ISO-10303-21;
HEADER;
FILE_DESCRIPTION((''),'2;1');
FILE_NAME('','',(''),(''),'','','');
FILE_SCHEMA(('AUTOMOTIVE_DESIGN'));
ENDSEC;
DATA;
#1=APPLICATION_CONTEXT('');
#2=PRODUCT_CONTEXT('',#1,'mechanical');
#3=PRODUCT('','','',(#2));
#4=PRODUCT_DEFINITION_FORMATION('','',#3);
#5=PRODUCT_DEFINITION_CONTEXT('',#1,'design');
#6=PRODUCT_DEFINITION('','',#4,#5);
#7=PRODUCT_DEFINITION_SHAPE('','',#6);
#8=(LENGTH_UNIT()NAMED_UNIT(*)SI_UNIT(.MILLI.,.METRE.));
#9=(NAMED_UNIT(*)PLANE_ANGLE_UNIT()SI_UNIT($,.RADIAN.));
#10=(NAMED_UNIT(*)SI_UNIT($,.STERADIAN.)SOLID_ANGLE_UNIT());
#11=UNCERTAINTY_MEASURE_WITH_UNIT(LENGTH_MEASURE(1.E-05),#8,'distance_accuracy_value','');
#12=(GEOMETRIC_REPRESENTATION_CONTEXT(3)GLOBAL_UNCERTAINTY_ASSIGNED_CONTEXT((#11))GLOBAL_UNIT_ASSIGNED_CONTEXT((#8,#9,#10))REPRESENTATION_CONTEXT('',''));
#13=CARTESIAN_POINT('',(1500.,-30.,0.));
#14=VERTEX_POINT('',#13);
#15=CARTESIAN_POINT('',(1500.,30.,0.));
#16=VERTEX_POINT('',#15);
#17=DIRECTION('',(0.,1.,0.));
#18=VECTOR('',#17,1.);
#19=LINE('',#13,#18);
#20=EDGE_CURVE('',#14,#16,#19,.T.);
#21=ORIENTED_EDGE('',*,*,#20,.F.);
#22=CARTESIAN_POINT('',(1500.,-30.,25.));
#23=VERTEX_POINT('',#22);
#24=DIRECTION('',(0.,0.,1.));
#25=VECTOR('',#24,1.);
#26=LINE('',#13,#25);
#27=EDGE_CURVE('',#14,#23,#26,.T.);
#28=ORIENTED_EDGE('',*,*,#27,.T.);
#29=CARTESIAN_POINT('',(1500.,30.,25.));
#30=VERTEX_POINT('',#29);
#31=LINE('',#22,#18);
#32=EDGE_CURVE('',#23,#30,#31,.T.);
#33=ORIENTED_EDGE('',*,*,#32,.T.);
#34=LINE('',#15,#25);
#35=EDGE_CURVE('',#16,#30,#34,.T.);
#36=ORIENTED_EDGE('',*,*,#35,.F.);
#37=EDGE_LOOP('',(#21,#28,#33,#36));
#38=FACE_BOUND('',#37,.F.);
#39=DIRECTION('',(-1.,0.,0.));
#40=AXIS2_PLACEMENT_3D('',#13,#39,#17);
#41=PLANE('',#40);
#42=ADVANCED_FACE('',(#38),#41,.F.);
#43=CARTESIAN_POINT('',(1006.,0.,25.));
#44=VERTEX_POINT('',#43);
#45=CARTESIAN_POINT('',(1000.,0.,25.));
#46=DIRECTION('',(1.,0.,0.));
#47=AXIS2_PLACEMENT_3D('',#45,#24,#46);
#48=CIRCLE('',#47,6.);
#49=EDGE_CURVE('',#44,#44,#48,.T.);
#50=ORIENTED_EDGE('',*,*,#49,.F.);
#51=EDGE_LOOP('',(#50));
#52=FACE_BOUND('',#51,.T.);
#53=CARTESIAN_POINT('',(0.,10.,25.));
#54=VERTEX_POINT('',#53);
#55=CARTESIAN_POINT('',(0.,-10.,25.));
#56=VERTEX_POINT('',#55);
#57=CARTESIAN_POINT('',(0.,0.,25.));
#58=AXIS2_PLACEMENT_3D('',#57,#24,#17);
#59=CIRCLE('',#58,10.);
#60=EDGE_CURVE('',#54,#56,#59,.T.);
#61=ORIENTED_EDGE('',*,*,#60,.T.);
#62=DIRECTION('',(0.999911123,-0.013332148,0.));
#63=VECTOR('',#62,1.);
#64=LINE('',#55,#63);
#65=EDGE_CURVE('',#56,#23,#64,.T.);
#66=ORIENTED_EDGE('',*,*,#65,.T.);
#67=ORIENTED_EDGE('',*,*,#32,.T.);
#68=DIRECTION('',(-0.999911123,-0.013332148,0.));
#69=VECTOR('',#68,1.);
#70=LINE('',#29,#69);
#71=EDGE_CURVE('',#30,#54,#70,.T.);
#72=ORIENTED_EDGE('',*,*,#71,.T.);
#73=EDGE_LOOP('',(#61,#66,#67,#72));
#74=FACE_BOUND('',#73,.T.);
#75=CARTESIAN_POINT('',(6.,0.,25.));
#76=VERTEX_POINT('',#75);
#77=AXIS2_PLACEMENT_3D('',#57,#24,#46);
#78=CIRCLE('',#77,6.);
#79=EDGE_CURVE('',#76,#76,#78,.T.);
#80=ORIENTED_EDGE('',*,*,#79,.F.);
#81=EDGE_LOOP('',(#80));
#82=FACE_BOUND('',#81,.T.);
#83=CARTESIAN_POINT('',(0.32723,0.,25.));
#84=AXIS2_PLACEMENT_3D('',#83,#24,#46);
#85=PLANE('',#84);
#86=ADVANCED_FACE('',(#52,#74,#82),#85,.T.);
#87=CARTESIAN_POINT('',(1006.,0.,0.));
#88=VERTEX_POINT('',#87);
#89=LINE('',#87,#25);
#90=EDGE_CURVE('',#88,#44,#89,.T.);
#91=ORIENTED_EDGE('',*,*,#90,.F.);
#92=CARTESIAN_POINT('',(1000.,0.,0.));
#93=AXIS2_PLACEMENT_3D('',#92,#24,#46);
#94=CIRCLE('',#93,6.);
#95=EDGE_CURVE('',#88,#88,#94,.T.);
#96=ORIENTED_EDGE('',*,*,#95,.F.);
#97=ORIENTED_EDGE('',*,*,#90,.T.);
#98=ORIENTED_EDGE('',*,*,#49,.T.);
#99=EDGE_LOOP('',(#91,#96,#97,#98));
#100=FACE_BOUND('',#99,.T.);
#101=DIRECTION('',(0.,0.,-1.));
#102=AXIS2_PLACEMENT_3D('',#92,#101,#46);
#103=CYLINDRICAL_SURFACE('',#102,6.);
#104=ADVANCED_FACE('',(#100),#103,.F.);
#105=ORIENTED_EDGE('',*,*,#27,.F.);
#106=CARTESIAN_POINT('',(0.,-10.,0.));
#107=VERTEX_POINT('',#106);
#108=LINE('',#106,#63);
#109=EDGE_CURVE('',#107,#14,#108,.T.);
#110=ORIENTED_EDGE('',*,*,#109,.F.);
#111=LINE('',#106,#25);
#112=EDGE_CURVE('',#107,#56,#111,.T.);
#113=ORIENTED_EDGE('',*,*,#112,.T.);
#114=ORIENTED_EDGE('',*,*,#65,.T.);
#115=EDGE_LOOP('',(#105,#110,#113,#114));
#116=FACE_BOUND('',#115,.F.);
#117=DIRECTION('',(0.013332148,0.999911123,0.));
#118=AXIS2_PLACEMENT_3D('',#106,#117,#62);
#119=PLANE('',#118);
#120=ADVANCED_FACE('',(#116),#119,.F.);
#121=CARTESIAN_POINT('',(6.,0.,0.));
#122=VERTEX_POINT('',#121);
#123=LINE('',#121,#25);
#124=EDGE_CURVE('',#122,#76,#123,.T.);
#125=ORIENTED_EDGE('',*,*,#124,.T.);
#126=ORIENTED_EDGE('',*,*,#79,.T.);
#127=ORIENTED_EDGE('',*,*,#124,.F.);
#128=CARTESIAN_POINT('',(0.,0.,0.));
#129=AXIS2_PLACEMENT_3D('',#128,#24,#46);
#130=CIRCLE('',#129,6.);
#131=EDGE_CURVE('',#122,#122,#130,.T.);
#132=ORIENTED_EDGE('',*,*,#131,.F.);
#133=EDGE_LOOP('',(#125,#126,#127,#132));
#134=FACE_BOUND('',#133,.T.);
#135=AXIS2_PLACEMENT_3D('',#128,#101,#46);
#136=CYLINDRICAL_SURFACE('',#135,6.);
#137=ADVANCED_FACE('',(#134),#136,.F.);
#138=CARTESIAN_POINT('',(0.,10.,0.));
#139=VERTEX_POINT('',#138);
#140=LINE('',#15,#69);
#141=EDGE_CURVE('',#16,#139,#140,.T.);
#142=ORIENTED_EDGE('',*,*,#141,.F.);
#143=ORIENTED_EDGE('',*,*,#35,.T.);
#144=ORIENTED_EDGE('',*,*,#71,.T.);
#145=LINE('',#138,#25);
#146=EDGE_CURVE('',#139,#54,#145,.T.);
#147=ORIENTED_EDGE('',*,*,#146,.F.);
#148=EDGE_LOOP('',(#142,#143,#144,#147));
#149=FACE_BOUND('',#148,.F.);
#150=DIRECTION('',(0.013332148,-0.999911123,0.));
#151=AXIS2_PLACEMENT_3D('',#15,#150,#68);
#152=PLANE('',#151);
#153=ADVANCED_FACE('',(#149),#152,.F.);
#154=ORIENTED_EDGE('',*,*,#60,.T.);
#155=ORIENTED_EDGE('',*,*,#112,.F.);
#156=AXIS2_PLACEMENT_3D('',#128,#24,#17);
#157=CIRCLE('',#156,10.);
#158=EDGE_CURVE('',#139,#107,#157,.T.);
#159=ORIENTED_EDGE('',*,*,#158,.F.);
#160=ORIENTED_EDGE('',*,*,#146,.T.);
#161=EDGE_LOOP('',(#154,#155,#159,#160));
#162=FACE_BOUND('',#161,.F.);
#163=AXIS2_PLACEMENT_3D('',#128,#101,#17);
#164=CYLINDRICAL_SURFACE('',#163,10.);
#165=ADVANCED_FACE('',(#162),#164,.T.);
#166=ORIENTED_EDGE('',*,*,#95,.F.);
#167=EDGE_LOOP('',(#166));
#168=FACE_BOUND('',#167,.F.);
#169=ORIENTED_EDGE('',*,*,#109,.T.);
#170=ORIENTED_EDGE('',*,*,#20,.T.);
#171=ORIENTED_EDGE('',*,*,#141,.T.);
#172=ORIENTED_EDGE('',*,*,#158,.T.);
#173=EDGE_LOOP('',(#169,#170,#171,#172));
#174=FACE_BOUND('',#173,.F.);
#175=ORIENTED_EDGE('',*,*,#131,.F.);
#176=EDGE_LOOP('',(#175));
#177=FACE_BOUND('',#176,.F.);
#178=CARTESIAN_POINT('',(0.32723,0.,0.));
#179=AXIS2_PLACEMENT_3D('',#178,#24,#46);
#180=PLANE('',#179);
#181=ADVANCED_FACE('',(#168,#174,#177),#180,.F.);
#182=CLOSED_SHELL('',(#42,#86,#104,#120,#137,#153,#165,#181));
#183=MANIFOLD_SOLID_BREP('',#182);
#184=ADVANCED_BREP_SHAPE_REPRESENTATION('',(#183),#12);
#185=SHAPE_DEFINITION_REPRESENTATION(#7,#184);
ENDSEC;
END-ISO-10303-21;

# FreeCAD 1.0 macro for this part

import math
import FreeCAD as App
import Part
import Sketcher

V = App.Vector
Q = App.Units.Quantity

doc = App.newDocument("Part")
params = doc.addObject("Spreadsheet::Sheet", "Params")
for row, (alias, value) in enumerate([
    ("sketch1_diameter", "12 mm"),
    ("sketch1_radius", "10 mm"),
    ("sketch1_height", "60 mm"),
    ("pad1_length", "25 mm"),
], start=1):
    params.set(f"A{row}", alias)
    params.set(f"B{row}", "=" + value)
    params.setAlias(f"B{row}", alias)

body = doc.addObject("PartDesign::Body", "Body")

sketch1 = body.newObject("Sketcher::SketchObject", "Sketch")
sketch1.AttachmentSupport = (doc.getObject("XY_Plane"), [""])
sketch1.MapMode = "FlatFace"
sketch1.addGeometry(Part.ArcOfCircle(Part.Circle(V(0, 0, 0), V(0, 0, 1), 10), math.radians(90), math.radians(270)), False)
sketch1.addGeometry(Part.LineSegment(V(0, -10, 0), V(1500, -30, 0)), False)
sketch1.addGeometry(Part.LineSegment(V(1500, -30, 0), V(1500, 30, 0)), False)
sketch1.addGeometry(Part.LineSegment(V(1500, 30, 0), V(0, 10, 0)), False)
sketch1.addGeometry(Part.Circle(V(0, 0, 0), V(0, 0, 1), 6), False)
sketch1.addGeometry(Part.Circle(V(1000, 0, 0), V(0, 0, 1), 6), False)
sketch1.addConstraint(Sketcher.Constraint("Coincident", 0, 2, 1, 1))
sketch1.addConstraint(Sketcher.Constraint("Coincident", 1, 2, 2, 1))
sketch1.addConstraint(Sketcher.Constraint("Coincident", 2, 2, 3, 1))
sketch1.addConstraint(Sketcher.Constraint("Coincident", 3, 2, 0, 1))
sketch1.addConstraint(Sketcher.Constraint("Vertical", 2))
sketch1.addConstraint(Sketcher.Constraint("Coincident", 0, 3, -1, 1))
sketch1.addConstraint(Sketcher.Constraint("Coincident", 4, 3, -1, 1))
sketch1.addConstraint(Sketcher.Constraint("Equal", 4, 5))
sketch1.addConstraint(Sketcher.Constraint("PointOnObject", 5, 3, -1))
sketch1.addConstraint(Sketcher.Constraint("PointOnObject", 0, 2, -2))
sketch1.addConstraint(Sketcher.Constraint("PointOnObject", 3, 2, -2))
sketch1.addConstraint(Sketcher.Constraint("Equal", 1, 3))
sketch1.addConstraint(Sketcher.Constraint("Diameter", 4, Q("12 mm")))
sketch1.addConstraint(Sketcher.Constraint("Radius", 0, Q("10 mm")))
sketch1.addConstraint(Sketcher.Constraint("DistanceY", 2, 1, 2, 2, Q("60 mm")))
sketch1.addConstraint(Sketcher.Constraint("DistanceX", -1, 1, 5, 3, Q("1000 mm")))
sketch1.addConstraint(Sketcher.Constraint("DistanceX", -1, 1, 1, 2, Q("1500 mm")))
sketch1.setExpression("Constraints[12]", "Params.sketch1_diameter")
sketch1.setExpression("Constraints[13]", "Params.sketch1_radius")
sketch1.setExpression("Constraints[14]", "Params.sketch1_height")
pad1 = body.newObject("PartDesign::Pad", "Pad")
pad1.Profile = sketch1
pad1.setExpression("Length", "Params.pad1_length")

doc.recompute()
